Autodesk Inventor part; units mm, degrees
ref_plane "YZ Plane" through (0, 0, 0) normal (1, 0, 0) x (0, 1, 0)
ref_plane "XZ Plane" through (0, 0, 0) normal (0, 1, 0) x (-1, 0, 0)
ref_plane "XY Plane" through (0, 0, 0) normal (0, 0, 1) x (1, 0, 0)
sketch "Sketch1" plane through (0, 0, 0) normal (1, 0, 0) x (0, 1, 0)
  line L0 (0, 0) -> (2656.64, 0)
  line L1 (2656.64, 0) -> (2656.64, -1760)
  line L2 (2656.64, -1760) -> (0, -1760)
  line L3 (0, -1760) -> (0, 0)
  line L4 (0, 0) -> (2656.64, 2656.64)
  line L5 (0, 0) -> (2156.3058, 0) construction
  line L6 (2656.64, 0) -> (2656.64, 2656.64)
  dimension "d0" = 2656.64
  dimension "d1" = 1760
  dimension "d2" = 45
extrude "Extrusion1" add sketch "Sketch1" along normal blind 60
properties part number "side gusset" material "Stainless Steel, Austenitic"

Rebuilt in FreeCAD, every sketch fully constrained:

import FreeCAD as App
import Part
import Sketcher

V = App.Vector
Q = App.Units.Quantity

doc = App.newDocument("Part")
body = doc.addObject("PartDesign::Body", "Body")

# Sketch on YZ plane
sketch1 = body.newObject("Sketcher::SketchObject", "Sketch")
sketch1.AttachmentSupport = (doc.getObject("YZ_Plane"), [""])
sketch1.MapMode = "FlatFace"
sketch1.addGeometry([
    Part.LineSegment(V(2656.64, 2656.64, 0), V(0, 0, 0)),
    Part.LineSegment(V(0, 0, 0), V(0, -1760, 0)),
    Part.LineSegment(V(0, -1760, 0), V(2656.64, -1760, 0)),
    Part.LineSegment(V(2656.64, -1760, 0), V(2656.64, 2656.64, 0)),
], False)
sketch1.addConstraint([
    Sketcher.Constraint("Coincident", 0, 2, 1, 1),
    Sketcher.Constraint("Coincident", 1, 2, 2, 1),
    Sketcher.Constraint("Coincident", 2, 2, 3, 1),
    Sketcher.Constraint("Coincident", 3, 2, 0, 1),
    Sketcher.Constraint("Vertical", 1),
    Sketcher.Constraint("Horizontal", 2),
    Sketcher.Constraint("Vertical", 3),
    Sketcher.Constraint("Coincident", 0, 2, -1, 1),
    Sketcher.Constraint("DistanceY", 1, 2, 1, 1, Q("1760 mm")),
    Sketcher.Constraint("DistanceX", 2, 1, 2, 2, Q("2656.64 mm")),
    Sketcher.Constraint("DistanceY", -1, 1, 3, 2, Q("2656.64 mm")),
])
pad1 = body.newObject("PartDesign::Pad", "Pad")
pad1.Profile = sketch1
pad1.Length = 60

doc.recompute()
